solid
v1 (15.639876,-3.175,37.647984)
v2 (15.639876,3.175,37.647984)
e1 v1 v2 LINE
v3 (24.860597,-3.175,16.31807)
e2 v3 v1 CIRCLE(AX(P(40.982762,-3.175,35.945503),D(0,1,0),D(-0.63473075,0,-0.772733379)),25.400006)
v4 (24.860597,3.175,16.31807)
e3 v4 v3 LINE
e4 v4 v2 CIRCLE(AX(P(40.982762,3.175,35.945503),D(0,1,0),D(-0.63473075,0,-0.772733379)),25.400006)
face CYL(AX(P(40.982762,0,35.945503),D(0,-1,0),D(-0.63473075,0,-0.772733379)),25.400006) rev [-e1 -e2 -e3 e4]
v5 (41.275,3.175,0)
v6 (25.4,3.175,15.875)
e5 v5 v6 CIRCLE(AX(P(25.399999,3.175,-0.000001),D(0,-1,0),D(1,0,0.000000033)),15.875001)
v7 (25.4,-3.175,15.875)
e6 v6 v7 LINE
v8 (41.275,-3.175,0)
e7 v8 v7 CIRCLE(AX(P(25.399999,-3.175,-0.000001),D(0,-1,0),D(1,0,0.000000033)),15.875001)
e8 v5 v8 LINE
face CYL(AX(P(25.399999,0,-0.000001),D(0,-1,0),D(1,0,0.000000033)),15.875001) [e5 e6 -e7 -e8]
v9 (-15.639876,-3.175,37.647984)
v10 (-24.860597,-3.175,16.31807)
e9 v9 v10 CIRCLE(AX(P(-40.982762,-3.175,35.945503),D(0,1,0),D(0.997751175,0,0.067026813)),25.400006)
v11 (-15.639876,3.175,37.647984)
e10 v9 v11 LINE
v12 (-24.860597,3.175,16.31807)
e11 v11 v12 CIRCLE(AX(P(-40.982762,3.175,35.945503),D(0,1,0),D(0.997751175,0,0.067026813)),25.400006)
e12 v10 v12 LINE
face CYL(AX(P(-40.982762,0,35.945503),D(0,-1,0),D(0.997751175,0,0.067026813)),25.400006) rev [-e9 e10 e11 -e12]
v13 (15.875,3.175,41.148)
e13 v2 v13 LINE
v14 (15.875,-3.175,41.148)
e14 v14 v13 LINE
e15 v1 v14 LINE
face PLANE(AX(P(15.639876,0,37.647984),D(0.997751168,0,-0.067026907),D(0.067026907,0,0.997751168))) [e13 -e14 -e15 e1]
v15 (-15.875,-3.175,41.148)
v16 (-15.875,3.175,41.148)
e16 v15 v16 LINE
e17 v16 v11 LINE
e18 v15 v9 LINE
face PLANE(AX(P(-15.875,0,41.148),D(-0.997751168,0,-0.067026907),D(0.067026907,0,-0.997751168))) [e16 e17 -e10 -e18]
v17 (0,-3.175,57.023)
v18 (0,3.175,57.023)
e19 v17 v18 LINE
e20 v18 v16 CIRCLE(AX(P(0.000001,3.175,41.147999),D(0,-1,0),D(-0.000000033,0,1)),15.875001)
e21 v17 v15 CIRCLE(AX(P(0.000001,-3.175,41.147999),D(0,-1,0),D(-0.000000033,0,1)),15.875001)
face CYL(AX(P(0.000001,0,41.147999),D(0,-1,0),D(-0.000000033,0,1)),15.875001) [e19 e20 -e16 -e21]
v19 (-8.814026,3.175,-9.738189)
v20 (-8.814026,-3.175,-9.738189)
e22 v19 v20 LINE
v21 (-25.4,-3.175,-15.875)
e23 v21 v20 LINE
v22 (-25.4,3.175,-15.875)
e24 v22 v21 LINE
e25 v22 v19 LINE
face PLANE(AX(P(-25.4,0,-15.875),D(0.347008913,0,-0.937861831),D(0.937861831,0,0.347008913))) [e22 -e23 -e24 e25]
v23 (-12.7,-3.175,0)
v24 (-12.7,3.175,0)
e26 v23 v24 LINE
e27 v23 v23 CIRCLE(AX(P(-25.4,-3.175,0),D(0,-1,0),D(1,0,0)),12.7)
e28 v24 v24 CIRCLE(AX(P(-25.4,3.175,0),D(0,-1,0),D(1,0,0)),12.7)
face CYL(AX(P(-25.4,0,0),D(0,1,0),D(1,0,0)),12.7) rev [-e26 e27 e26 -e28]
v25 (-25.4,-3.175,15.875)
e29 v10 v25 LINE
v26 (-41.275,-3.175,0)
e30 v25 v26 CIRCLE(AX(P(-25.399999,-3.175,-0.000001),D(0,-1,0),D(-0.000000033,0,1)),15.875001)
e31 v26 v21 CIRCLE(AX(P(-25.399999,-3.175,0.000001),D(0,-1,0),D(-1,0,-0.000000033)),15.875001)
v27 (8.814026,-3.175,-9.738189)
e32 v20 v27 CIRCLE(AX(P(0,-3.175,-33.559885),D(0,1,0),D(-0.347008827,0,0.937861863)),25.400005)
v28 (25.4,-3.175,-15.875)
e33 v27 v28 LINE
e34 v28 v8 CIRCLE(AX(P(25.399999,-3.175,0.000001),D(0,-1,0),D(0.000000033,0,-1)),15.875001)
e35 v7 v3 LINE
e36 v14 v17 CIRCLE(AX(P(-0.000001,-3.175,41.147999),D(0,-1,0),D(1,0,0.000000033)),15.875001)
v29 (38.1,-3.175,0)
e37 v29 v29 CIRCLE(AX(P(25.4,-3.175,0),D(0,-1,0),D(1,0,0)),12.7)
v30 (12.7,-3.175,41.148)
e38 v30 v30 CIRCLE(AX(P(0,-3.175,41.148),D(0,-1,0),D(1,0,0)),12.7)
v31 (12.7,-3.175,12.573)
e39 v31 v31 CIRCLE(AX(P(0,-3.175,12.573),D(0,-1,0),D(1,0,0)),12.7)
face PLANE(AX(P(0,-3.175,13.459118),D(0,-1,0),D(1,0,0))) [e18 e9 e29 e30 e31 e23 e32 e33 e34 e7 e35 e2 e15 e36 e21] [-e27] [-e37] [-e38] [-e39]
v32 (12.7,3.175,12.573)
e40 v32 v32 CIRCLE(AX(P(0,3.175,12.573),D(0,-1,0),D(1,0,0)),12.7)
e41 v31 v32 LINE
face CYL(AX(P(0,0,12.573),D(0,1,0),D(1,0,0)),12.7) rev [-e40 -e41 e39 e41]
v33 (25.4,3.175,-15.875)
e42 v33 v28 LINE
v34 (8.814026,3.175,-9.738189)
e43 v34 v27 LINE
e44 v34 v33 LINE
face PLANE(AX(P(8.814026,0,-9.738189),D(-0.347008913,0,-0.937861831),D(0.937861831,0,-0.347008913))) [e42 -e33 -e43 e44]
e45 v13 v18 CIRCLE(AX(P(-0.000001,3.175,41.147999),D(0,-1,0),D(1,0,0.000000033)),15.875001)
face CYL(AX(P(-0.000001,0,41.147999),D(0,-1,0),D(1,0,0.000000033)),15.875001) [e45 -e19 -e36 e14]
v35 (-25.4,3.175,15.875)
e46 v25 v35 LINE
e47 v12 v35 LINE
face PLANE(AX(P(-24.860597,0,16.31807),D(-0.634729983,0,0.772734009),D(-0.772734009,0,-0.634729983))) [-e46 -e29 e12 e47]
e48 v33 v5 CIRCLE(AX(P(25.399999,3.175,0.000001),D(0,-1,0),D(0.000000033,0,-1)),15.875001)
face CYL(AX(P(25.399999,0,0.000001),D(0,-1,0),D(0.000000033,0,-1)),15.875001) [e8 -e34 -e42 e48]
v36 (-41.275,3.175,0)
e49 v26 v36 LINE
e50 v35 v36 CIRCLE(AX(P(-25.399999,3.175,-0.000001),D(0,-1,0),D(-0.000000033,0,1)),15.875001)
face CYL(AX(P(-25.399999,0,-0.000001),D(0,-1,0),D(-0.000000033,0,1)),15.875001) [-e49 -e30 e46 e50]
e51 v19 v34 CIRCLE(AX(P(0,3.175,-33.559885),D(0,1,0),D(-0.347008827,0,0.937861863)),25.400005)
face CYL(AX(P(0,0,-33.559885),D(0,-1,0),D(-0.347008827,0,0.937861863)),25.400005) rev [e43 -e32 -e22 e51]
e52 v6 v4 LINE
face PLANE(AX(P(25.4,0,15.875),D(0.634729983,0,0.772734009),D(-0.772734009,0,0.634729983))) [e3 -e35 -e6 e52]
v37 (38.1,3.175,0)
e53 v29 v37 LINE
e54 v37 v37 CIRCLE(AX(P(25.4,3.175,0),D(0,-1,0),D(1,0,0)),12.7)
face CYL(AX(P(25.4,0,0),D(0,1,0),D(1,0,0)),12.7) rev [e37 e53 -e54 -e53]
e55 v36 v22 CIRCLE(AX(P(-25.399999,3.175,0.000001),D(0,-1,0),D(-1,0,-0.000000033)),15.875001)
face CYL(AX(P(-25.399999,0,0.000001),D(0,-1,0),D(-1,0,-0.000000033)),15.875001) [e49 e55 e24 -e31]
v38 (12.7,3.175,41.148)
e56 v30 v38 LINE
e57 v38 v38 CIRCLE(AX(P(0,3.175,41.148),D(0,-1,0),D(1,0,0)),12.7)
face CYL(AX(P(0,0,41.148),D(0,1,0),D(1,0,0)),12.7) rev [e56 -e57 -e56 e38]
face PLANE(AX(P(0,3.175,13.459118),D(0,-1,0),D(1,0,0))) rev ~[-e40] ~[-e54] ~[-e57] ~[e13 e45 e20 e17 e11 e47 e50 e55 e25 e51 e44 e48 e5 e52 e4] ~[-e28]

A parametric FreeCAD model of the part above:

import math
import FreeCAD as App
import Part
import Sketcher
Q = App.Units.Quantity

doc = App.newDocument("Part")
body = doc.addObject("PartDesign::Body", "Body")

# Sketch on XZ plane
sketch1 = body.newObject("Sketcher::SketchObject", "Sketch")
sketch1.AttachmentSupport = (doc.getObject("XZ_Plane"), [""])
sketch1.MapMode = "FlatFace"
sketch1.addGeometry(Part.ArcOfCircle(Part.Circle(App.Vector(-25.4, 0, 0), App.Vector(0, 0, 1), 15.9), math.radians(-180), math.radians(-90)), False)
sketch1.addGeometry(Part.LineSegment(App.Vector(-25.4, -15.9, 0), App.Vector(-8.8, -9.7, 0)), False)
sketch1.addGeometry(Part.ArcOfCircle(Part.Circle(App.Vector(0, -33.6, 0), App.Vector(0, 0, 1), 25.4), math.radians(70), math.radians(110)), False)
sketch1.addGeometry(Part.LineSegment(App.Vector(8.8, -9.7, 0), App.Vector(25.4, -15.9, 0)), False)
sketch1.addGeometry(Part.ArcOfCircle(Part.Circle(App.Vector(25.4, 0, 0), App.Vector(0, 0, 1), 15.9), math.radians(-90), math.radians(0)), False)
sketch1.addGeometry(Part.ArcOfCircle(Part.Circle(App.Vector(25.4, 0, 0), App.Vector(0, 0, 1), 15.9), math.radians(0), math.radians(90)), False)
sketch1.addGeometry(Part.LineSegment(App.Vector(25.4, 15.9, 0), App.Vector(24.9, 16.3, 0)), False)
sketch1.addGeometry(Part.ArcOfCircle(Part.Circle(App.Vector(41, 35.9, 0), App.Vector(0, 0, 1), 25.4), math.radians(176), math.radians(231)), False)
sketch1.addGeometry(Part.LineSegment(App.Vector(15.6, 37.6, 0), App.Vector(15.9, 41.1, 0)), False)
sketch1.addGeometry(Part.ArcOfCircle(Part.Circle(App.Vector(0, 41.1, 0), App.Vector(0, 0, 1), 15.9), math.radians(0), math.radians(90)), False)
sketch1.addGeometry(Part.ArcOfCircle(Part.Circle(App.Vector(0, 41.1, 0), App.Vector(0, 0, 1), 15.9), math.radians(90), math.radians(180)), False)
sketch1.addGeometry(Part.LineSegment(App.Vector(-15.9, 41.1, 0), App.Vector(-15.6, 37.6, 0)), False)
sketch1.addGeometry(Part.ArcOfCircle(Part.Circle(App.Vector(-41, 35.9, 0), App.Vector(0, 0, 1), 25.4), math.radians(-51), math.radians(4)), False)
sketch1.addGeometry(Part.LineSegment(App.Vector(-24.9, 16.3, 0), App.Vector(-25.4, 15.9, 0)), False)
sketch1.addGeometry(Part.ArcOfCircle(Part.Circle(App.Vector(-25.4, 0, 0), App.Vector(0, 0, 1), 15.9), math.radians(90), math.radians(180)), False)
sketch1.addGeometry(Part.Circle(App.Vector(-25.4, 0, 0), App.Vector(0, 0, 1), 12.7), False)
sketch1.addGeometry(Part.Circle(App.Vector(25.4, 0, 0), App.Vector(0, 0, 1), 12.7), False)
sketch1.addGeometry(Part.Circle(App.Vector(0, 12.6, 0), App.Vector(0, 0, 1), 12.7), False)
sketch1.addGeometry(Part.Circle(App.Vector(0, 41.1, 0), App.Vector(0, 0, 1), 12.7), False)
sketch1.addConstraint(Sketcher.Constraint("Coincident", 0, 2, 1, 1))
sketch1.addConstraint(Sketcher.Constraint("Tangent", 1, 2, 2, 2))
sketch1.addConstraint(Sketcher.Constraint("Tangent", 2, 1, 3, 1))
sketch1.addConstraint(Sketcher.Constraint("Coincident", 3, 2, 4, 1))
sketch1.addConstraint(Sketcher.Constraint("Tangent", 4, 2, 5, 1))
sketch1.addConstraint(Sketcher.Constraint("Coincident", 5, 2, 6, 1))
sketch1.addConstraint(Sketcher.Constraint("Tangent", 6, 2, 7, 2))
sketch1.addConstraint(Sketcher.Constraint("Tangent", 7, 1, 8, 1))
sketch1.addConstraint(Sketcher.Constraint("Coincident", 8, 2, 9, 1))
sketch1.addConstraint(Sketcher.Constraint("Tangent", 9, 2, 10, 1))
sketch1.addConstraint(Sketcher.Constraint("Coincident", 10, 2, 11, 1))
sketch1.addConstraint(Sketcher.Constraint("Tangent", 11, 2, 12, 2))
sketch1.addConstraint(Sketcher.Constraint("Tangent", 12, 1, 13, 1))
sketch1.addConstraint(Sketcher.Constraint("Coincident", 13, 2, 14, 1))
sketch1.addConstraint(Sketcher.Constraint("Tangent", 14, 2, 0, 1))
sketch1.addConstraint(Sketcher.Constraint("Coincident", 15, 3, 0, 3))
sketch1.addConstraint(Sketcher.Constraint("Coincident", 16, 3, 4, 3))
sketch1.addConstraint(Sketcher.Constraint("Coincident", 18, 3, 9, 3))
sketch1.addConstraint(Sketcher.Constraint("Equal", 0, 4))
sketch1.addConstraint(Sketcher.Constraint("Equal", 4, 5))
sketch1.addConstraint(Sketcher.Constraint("Equal", 2, 7))
sketch1.addConstraint(Sketcher.Constraint("Equal", 5, 9))
sketch1.addConstraint(Sketcher.Constraint("Equal", 9, 10))
sketch1.addConstraint(Sketcher.Constraint("Equal", 7, 12))
sketch1.addConstraint(Sketcher.Constraint("Equal", 10, 14))
sketch1.addConstraint(Sketcher.Constraint("Equal", 15, 16))
sketch1.addConstraint(Sketcher.Constraint("Equal", 16, 17))
sketch1.addConstraint(Sketcher.Constraint("Equal", 17, 18))
sketch1.addConstraint(Sketcher.Constraint("Symmetric", 0, 3, 4, 3, -1, 1))
sketch1.addConstraint(Sketcher.Constraint("Symmetric", 7, 3, 12, 3, -2))
sketch1.addConstraint(Sketcher.Constraint("Symmetric", 1, 2, 2, 1, -2))
sketch1.addConstraint(Sketcher.Constraint("Symmetric", 8, 2, 10, 2, -2))
sketch1.addConstraint(Sketcher.Constraint("Symmetric", 5, 2, 13, 2, -2))
sketch1.addConstraint(Sketcher.Constraint("PointOnObject", 17, 3, -2))
sketch1.addConstraint(Sketcher.Constraint("PointOnObject", 4, 2, -1))
sketch1.addConstraint(Sketcher.Constraint("PointOnObject", 9, 2, -2))
sketch1.addConstraint(Sketcher.Constraint("PointOnObject", 14, 2, -1))
sketch1.addConstraint(Sketcher.Constraint("Horizontal", 18, 3, 8, 2))
sketch1.addConstraint(Sketcher.Constraint("Vertical", 15, 3, 0, 2))
sketch1.addConstraint(Sketcher.Constraint("Vertical", 3, 2, 5, 2))
sketch1.addConstraint(Sketcher.Constraint("Diameter", 15, Q("1 in")))
sketch1.addConstraint(Sketcher.Constraint("DistanceX", 0, 3, -1, 1, Q("1 in")))
sketch1.addConstraint(Sketcher.Constraint("Radius", 0, Q("0.625 in")))
sketch1.addConstraint(Sketcher.Constraint("DistanceY", -1, 1, 9, 3, Q("1.62 in")))
sketch1.addConstraint(Sketcher.Constraint("DistanceY", 0, 2, 17, 3, Q("1.12 in")))
sketch1.addConstraint(Sketcher.Constraint("Radius", 2, Q("25.400005 mm")))
sketch1.addConstraint(Sketcher.Constraint("Distance", 1, Q("17.68488 mm")))
sketch1.addConstraint(Sketcher.Constraint("DistanceX", -1, 1, 7, 3, Q("40.982762 mm")))
sketch1.addConstraint(Sketcher.Constraint("DistanceY", -1, 1, 6, 2, Q("16.31807 mm")))
pad1 = body.newObject("PartDesign::Pad", "Pad")
pad1.Profile = sketch1
pad1.Length = Q("0.25 in")
pad1.Midplane = True

doc.recompute()
